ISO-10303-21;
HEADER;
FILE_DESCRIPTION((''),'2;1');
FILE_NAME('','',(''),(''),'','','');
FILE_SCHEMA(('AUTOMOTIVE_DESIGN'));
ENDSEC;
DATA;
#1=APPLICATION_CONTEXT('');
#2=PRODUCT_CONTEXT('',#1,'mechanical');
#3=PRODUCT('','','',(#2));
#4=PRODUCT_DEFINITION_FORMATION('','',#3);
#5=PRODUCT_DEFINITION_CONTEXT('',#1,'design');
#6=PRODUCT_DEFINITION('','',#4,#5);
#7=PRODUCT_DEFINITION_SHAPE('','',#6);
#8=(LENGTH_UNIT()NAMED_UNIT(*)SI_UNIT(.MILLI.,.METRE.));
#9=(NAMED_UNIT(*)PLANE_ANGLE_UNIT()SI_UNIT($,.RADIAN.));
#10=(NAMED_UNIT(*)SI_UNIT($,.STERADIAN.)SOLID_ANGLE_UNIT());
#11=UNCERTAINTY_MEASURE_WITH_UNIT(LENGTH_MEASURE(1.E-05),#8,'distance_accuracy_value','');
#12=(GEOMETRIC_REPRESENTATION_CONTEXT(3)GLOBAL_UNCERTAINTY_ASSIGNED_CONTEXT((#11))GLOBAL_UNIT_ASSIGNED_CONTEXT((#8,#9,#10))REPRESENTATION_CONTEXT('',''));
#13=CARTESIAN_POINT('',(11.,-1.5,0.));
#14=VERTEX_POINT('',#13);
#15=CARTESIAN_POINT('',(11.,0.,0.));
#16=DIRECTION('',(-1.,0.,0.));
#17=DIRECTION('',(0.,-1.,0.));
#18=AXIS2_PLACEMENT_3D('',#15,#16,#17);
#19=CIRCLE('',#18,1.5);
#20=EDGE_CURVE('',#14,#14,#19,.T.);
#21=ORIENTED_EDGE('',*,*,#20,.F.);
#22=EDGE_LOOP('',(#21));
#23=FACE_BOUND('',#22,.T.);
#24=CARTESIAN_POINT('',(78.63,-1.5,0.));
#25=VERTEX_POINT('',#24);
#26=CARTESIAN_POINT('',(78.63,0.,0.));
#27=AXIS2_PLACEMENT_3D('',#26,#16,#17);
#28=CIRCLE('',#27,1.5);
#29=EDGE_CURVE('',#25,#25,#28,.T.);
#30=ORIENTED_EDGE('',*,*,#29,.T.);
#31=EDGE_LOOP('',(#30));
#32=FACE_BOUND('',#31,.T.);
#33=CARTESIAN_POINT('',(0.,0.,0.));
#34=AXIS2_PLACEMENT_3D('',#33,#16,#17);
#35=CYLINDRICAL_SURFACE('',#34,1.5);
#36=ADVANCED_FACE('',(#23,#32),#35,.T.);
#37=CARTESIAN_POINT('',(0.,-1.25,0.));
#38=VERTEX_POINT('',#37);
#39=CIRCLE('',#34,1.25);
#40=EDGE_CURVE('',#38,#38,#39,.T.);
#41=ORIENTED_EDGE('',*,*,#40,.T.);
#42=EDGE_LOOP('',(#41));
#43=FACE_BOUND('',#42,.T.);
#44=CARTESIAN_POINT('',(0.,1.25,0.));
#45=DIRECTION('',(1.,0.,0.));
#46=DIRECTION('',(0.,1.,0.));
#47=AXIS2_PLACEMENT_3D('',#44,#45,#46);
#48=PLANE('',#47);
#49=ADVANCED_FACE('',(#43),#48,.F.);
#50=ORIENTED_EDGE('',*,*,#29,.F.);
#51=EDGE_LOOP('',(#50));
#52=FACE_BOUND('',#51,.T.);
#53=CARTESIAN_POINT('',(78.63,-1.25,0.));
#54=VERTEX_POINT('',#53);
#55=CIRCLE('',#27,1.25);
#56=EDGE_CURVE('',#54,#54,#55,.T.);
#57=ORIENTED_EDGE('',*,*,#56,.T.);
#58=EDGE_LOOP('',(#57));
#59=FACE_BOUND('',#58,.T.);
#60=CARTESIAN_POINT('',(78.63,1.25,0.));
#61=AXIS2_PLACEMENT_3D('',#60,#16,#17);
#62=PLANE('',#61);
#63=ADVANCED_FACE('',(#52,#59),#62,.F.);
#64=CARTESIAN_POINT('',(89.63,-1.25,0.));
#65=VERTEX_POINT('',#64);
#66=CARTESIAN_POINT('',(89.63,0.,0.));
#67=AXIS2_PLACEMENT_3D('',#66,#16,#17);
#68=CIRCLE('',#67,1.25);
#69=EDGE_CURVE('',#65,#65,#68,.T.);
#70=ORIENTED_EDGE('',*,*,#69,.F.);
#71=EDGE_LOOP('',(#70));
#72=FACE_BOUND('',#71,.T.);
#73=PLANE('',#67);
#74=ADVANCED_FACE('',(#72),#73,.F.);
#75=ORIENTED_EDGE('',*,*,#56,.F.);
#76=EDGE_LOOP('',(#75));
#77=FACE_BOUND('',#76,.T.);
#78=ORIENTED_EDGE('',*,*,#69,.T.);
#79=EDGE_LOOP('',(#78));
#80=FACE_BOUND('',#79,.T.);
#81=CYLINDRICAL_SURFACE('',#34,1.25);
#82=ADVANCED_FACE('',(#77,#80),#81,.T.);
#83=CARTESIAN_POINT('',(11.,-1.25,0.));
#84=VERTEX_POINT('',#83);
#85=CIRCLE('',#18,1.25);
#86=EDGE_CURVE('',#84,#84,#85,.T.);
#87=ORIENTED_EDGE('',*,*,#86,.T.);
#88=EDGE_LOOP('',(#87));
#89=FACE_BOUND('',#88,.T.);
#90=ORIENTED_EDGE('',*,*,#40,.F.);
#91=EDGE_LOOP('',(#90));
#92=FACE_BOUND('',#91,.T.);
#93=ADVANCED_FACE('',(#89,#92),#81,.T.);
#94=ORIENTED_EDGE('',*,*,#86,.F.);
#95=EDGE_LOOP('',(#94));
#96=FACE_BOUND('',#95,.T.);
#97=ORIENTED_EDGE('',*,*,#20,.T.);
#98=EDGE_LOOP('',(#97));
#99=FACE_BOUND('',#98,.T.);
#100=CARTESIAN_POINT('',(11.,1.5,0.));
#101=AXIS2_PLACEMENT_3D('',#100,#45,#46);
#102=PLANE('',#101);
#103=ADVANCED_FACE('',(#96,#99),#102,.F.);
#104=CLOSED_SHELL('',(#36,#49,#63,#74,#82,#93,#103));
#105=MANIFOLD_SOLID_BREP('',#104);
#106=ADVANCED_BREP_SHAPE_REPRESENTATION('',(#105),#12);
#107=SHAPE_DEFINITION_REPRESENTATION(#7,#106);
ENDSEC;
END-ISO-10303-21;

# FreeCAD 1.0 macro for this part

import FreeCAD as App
import Part
import Sketcher
from FreeCAD import Vector


def add_polygon(sketch, points):
    """Adds a closed chain of lines whose ends are joined by coincident constraints."""
    first, n = sketch.GeometryCount, len(points)
    for a, b in zip(points, points[1:] + points[:1]):
        sketch.addGeometry(Part.LineSegment(App.Vector(*a, 0), App.Vector(*b, 0)), False)
    for i in range(n):
        sketch.addConstraint(Sketcher.Constraint("Coincident", first + i, 2, first + (i + 1) % n, 1))

doc = App.newDocument("Part")
params = doc.addObject("Spreadsheet::Sheet", "Params")
for row, (alias, value) in enumerate([
    ("sketch1_width", "11 mm"),
    ("sketch1_width2", "89.63 mm"),
    ("sketch1_height", "1.25 mm"),
    ("sketch1_height2", "0.25 mm"),
    ("revolution_angle", "360 deg"),
], start=1):
    params.set(f"A{row}", alias)
    params.set(f"B{row}", "=" + value)
    params.setAlias(f"B{row}", alias)

body = doc.addObject("PartDesign::Body", "Body")

# Sketch on XY plane
sketch1 = body.newObject("Sketcher::SketchObject", "Sketch")
sketch1.AttachmentSupport = (doc.getObject("XY_Plane"), [""])
sketch1.MapMode = "FlatFace"
add_polygon(sketch1, [(0, 0), (89.63, 0), (89.63, 1.25), (78.63, 1.25), (78.63, 1.5), (11, 1.5), (11, 1.25), (0, 1.25)])  # lines 0-7
sketch1.addConstraint(Sketcher.Constraint("Horizontal", 0))
sketch1.addConstraint(Sketcher.Constraint("Vertical", 1))
sketch1.addConstraint(Sketcher.Constraint("Horizontal", 2))
sketch1.addConstraint(Sketcher.Constraint("Vertical", 3))
sketch1.addConstraint(Sketcher.Constraint("Horizontal", 4))
sketch1.addConstraint(Sketcher.Constraint("Vertical", 5))
sketch1.addConstraint(Sketcher.Constraint("Horizontal", 6))
sketch1.addConstraint(Sketcher.Constraint("Vertical", 7))
sketch1.addConstraint(Sketcher.Constraint("Coincident", 7, 2, -1, 1))
sketch1.addConstraint(Sketcher.Constraint("Horizontal", 2, 2, 5, 2))
sketch1.addConstraint(Sketcher.Constraint("Equal", 2, 6))
sketch1.addConstraint(Sketcher.Constraint("DistanceX", 2, 2, 2, 1, 11.0))
sketch1.addConstraint(Sketcher.Constraint("DistanceX", 0, 1, 0, 2, 89.63))
sketch1.addConstraint(Sketcher.Constraint("DistanceY", 1, 1, 1, 2, 1.25))
sketch1.addConstraint(Sketcher.Constraint("DistanceY", 3, 1, 3, 2, 0.25))
sketch1.setExpression("Constraints[19]", "Params.sketch1_width")
sketch1.setExpression("Constraints[20]", "Params.sketch1_width2")
sketch1.setExpression("Constraints[21]", "Params.sketch1_height")
sketch1.setExpression("Constraints[22]", "Params.sketch1_height2")
revolution = body.newObject("PartDesign::Revolution", "Revolution")
revolution.Profile = sketch1
revolution.ReferenceAxis = (sketch1, ["H_Axis"])
revolution.setExpression("Angle", "Params.revolution_angle")

doc.recompute()
